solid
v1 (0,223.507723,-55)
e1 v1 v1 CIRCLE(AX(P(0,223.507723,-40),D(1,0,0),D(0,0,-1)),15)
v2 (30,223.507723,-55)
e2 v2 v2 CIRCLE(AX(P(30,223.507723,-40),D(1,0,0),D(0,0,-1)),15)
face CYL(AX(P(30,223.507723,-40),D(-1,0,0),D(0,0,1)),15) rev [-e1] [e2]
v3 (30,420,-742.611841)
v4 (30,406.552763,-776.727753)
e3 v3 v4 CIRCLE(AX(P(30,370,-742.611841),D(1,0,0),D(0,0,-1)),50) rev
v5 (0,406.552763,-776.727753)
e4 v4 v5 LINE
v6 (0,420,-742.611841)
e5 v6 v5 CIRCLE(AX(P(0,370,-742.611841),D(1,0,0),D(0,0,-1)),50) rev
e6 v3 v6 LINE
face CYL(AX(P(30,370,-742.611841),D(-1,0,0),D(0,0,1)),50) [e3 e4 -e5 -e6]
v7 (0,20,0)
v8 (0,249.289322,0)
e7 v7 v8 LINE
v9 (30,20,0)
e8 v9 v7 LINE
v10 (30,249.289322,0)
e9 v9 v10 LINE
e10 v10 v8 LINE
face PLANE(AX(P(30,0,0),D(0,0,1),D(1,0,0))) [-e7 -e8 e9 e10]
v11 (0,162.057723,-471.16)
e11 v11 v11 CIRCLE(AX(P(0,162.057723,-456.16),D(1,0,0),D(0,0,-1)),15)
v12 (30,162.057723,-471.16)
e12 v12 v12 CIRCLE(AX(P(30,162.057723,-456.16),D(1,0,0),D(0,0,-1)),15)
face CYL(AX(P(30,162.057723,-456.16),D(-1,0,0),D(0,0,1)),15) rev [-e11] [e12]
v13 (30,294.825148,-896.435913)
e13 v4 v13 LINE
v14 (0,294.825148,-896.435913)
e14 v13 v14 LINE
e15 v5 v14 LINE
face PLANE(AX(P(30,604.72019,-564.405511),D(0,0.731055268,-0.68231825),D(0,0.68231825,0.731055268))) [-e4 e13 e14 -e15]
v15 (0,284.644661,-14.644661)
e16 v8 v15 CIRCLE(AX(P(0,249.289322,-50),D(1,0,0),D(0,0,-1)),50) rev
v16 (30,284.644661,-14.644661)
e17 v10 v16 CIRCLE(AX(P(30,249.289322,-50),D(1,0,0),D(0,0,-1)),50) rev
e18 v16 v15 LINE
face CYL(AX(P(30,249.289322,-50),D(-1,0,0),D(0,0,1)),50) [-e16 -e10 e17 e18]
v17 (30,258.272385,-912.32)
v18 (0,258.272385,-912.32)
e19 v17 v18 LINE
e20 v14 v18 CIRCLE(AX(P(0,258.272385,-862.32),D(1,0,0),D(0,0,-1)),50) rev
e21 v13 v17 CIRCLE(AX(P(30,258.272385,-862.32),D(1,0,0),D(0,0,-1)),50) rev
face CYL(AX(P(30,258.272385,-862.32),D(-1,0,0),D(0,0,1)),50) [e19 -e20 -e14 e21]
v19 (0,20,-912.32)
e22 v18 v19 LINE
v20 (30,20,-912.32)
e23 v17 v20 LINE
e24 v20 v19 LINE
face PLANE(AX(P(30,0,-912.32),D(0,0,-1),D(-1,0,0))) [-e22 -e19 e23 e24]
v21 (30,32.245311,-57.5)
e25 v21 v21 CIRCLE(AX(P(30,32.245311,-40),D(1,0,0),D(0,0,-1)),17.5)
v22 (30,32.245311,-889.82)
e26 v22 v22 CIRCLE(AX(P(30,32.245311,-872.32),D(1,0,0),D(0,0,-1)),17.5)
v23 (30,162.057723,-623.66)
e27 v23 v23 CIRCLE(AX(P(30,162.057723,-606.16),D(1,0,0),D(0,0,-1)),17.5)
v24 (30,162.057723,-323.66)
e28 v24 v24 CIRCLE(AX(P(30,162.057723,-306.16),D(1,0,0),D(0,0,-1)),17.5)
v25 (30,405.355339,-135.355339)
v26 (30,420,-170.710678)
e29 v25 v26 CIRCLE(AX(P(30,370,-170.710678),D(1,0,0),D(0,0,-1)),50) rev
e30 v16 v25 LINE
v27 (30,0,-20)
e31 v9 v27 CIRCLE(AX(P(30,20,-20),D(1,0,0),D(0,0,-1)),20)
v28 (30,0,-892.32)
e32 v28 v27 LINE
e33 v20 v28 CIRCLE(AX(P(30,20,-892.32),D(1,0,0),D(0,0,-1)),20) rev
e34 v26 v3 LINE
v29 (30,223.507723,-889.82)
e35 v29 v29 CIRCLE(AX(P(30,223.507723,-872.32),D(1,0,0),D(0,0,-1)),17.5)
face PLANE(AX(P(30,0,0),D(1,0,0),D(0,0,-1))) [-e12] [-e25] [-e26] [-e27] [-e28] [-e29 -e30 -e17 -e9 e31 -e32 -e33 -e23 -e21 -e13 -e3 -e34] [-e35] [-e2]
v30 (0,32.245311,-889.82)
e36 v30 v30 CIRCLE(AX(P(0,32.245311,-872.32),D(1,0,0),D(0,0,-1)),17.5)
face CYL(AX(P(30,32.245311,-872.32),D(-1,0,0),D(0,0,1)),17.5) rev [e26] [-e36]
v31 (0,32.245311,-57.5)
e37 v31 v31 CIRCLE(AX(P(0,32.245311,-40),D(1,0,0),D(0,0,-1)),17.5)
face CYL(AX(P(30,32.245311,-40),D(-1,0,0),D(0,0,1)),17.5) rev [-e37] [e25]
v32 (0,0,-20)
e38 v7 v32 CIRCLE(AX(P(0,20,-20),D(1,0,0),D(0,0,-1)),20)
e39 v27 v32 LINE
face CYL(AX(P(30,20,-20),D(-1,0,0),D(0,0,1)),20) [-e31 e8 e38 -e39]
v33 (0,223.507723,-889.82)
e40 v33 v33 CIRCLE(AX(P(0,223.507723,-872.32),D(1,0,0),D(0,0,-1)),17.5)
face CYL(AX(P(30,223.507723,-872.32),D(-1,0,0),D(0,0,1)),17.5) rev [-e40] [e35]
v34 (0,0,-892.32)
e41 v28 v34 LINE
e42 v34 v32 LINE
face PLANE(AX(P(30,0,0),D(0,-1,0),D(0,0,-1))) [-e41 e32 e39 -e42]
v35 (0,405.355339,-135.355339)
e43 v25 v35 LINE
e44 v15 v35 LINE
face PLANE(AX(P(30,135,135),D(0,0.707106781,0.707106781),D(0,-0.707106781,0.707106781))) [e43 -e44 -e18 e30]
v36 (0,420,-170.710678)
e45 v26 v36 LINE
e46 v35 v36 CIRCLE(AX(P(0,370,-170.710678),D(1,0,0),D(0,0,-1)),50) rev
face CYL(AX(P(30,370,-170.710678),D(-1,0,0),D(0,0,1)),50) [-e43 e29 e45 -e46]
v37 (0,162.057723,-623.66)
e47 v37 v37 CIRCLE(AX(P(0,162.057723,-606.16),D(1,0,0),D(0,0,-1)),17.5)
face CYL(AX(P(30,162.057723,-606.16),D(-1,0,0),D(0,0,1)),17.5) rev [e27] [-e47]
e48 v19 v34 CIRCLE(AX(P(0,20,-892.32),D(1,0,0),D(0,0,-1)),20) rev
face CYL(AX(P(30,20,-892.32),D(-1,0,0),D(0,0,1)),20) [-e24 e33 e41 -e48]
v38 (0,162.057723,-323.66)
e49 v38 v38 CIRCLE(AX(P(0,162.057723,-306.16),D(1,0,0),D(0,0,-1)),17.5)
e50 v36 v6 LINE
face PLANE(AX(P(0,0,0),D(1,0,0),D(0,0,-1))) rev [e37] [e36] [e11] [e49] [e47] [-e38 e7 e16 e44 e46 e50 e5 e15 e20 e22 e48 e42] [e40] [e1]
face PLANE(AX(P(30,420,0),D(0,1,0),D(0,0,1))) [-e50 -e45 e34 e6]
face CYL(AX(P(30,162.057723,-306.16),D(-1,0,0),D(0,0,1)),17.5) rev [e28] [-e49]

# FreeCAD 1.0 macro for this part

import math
import FreeCAD as App
import Part
import Sketcher
from FreeCAD import Vector
Q = App.Units.Quantity

doc = App.newDocument("Part")
body = doc.addObject("PartDesign::Body", "Body")

sketch1 = doc.addObject("Sketcher::SketchObject", "Sketch")
body.addObject(sketch1)
sketch1.AttachmentSupport = (doc.YZ_Plane, [""])
sketch1.MapMode = "FlatFace"
sketch1.addGeometry(Part.LineSegment(Vector(249, 0, 0), Vector(20, 0, 0)), False)
sketch1.addGeometry(Part.ArcOfCircle(Part.Circle(Vector(20, -20, 0), Vector(0, 0, 1), 20), math.radians(90), math.radians(180)), False)
sketch1.addGeometry(Part.LineSegment(Vector(0, -20, 0), Vector(0, -892, 0)), False)
sketch1.addGeometry(Part.ArcOfCircle(Part.Circle(Vector(20, -892, 0), Vector(0, 0, 1), 20), math.radians(180), math.radians(270)), False)
sketch1.addGeometry(Part.LineSegment(Vector(20, -912, 0), Vector(258, -912, 0)), False)
sketch1.addGeometry(Part.ArcOfCircle(Part.Circle(Vector(258, -862, 0), Vector(0, 0, 1), 50), math.radians(-90), math.radians(-43)), False)
sketch1.addGeometry(Part.LineSegment(Vector(295, -896, 0), Vector(407, -777, 0)), False)
sketch1.addGeometry(Part.ArcOfCircle(Part.Circle(Vector(370, -743, 0), Vector(0, 0, 1), 50), math.radians(-43), math.radians(0)), False)
sketch1.addGeometry(Part.LineSegment(Vector(420, -743, 0), Vector(420, -171, 0)), False)
sketch1.addGeometry(Part.ArcOfCircle(Part.Circle(Vector(370, -171, 0), Vector(0, 0, 1), 50), math.radians(0), math.radians(45)), False)
sketch1.addGeometry(Part.LineSegment(Vector(405, -135, 0), Vector(285, -15, 0)), False)
sketch1.addGeometry(Part.ArcOfCircle(Part.Circle(Vector(249, -50, 0), Vector(0, 0, 1), 50), math.radians(45), math.radians(90)), False)
sketch1.addGeometry(Part.Circle(Vector(32, -40, 0), Vector(0, 0, 1), 18), False)
sketch1.addGeometry(Part.Circle(Vector(32, -872, 0), Vector(0, 0, 1), 18), False)
sketch1.addGeometry(Part.Circle(Vector(162, -306, 0), Vector(0, 0, 1), 18), False)
sketch1.addGeometry(Part.Circle(Vector(162, -456, 0), Vector(0, 0, 1), 15), False)
sketch1.addGeometry(Part.Circle(Vector(224, -40, 0), Vector(0, 0, 1), 15), False)
sketch1.addGeometry(Part.Circle(Vector(162, -606, 0), Vector(0, 0, 1), 18), False)
sketch1.addGeometry(Part.Circle(Vector(224, -872, 0), Vector(0, 0, 1), 18), False)
sketch1.addConstraint(Sketcher.Constraint("Tangent", 0, 2, 1, 1))
sketch1.addConstraint(Sketcher.Constraint("Tangent", 1, 2, 2, 1))
sketch1.addConstraint(Sketcher.Constraint("Tangent", 2, 2, 3, 1))
sketch1.addConstraint(Sketcher.Constraint("Tangent", 3, 2, 4, 1))
sketch1.addConstraint(Sketcher.Constraint("Tangent", 4, 2, 5, 1))
sketch1.addConstraint(Sketcher.Constraint("Tangent", 5, 2, 6, 1))
sketch1.addConstraint(Sketcher.Constraint("Tangent", 6, 2, 7, 1))
sketch1.addConstraint(Sketcher.Constraint("Tangent", 7, 2, 8, 1))
sketch1.addConstraint(Sketcher.Constraint("Tangent", 8, 2, 9, 1))
sketch1.addConstraint(Sketcher.Constraint("Tangent", 9, 2, 10, 1))
sketch1.addConstraint(Sketcher.Constraint("Tangent", 10, 2, 11, 1))
sketch1.addConstraint(Sketcher.Constraint("Tangent", 11, 2, 0, 1))
sketch1.addConstraint(Sketcher.Constraint("Horizontal", 0))
sketch1.addConstraint(Sketcher.Constraint("Vertical", 2))
sketch1.addConstraint(Sketcher.Constraint("Horizontal", 4))
sketch1.addConstraint(Sketcher.Constraint("Vertical", 8))
sketch1.addConstraint(Sketcher.Constraint("Equal", 1, 3))
sketch1.addConstraint(Sketcher.Constraint("Equal", 5, 7))
sketch1.addConstraint(Sketcher.Constraint("Equal", 7, 9))
sketch1.addConstraint(Sketcher.Constraint("Equal", 9, 11))
sketch1.addConstraint(Sketcher.Constraint("Equal", 12, 13))
sketch1.addConstraint(Sketcher.Constraint("Equal", 13, 14))
sketch1.addConstraint(Sketcher.Constraint("Equal", 15, 16))
sketch1.addConstraint(Sketcher.Constraint("Equal", 14, 17))
sketch1.addConstraint(Sketcher.Constraint("Equal", 17, 18))
sketch1.addConstraint(Sketcher.Constraint("PointOnObject", 0, 2, -1))
sketch1.addConstraint(Sketcher.Constraint("PointOnObject", 1, 2, -2))
sketch1.addConstraint(Sketcher.Constraint("Horizontal", 12, 3, 16, 3))
sketch1.addConstraint(Sketcher.Constraint("Horizontal", 13, 3, 18, 3))
sketch1.addConstraint(Sketcher.Constraint("Vertical", 12, 3, 13, 3))
sketch1.addConstraint(Sketcher.Constraint("Vertical", 14, 3, 15, 3))
sketch1.addConstraint(Sketcher.Constraint("Vertical", 15, 3, 17, 3))
sketch1.addConstraint(Sketcher.Constraint("Vertical", 16, 3, 18, 3))
sketch1.addConstraint(Sketcher.Constraint("Diameter", 12, Q("35 mm")))
sketch1.addConstraint(Sketcher.Constraint("Diameter", 15, Q("30 mm")))
sketch1.addConstraint(Sketcher.Constraint("Radius", 1, Q("20 mm")))
sketch1.addConstraint(Sketcher.Constraint("Radius", 5, Q("50 mm")))
sketch1.addConstraint(Sketcher.Constraint("Angle", 10, Q("135 deg")))
sketch1.addConstraint(Sketcher.Constraint("DistanceX", -1, 1, 7, 3, Q("370 mm")))
sketch1.addConstraint(Sketcher.Constraint("DistanceY", 12, 3, -1, 1, Q("40 mm")))
sketch1.addConstraint(Sketcher.Constraint("DistanceY", 3, 3, 13, 3, Q("20 mm")))
sketch1.addConstraint(Sketcher.Constraint("DistanceY", 15, 3, 14, 3, Q("150 mm")))
sketch1.addConstraint(Sketcher.Constraint("DistanceY", 17, 3, 15, 3, Q("150 mm")))
sketch1.addConstraint(Sketcher.Constraint("DistanceY", 2, 2, 2, 1, Q("872.32 mm")))
sketch1.addConstraint(Sketcher.Constraint("DistanceY", 14, 3, -1, 1, Q("306.16 mm")))
sketch1.addConstraint(Sketcher.Constraint("DistanceX", 14, 3, 16, 3, Q("61.45 mm")))
sketch1.addConstraint(Sketcher.Constraint("DistanceX", 0, 2, 0, 1, Q("229.289322 mm")))
sketch1.addConstraint(Sketcher.Constraint("DistanceX", 14, 3, 11, 3, Q("87.231599 mm")))
sketch1.addConstraint(Sketcher.Constraint("Distance", 6, Q("163.747071 mm")))
sketch1.addConstraint(Sketcher.Constraint("DistanceX", 4, 1, 4, 2, Q("238.272385 mm")))
sketch1.addConstraint(Sketcher.Constraint("DistanceX", -1, 1, 12, 3, Q("32.245311 mm")))
pad1 = doc.addObject("PartDesign::Pad", "Pad")
body.addObject(pad1)
pad1.Profile = sketch1
pad1.Length = 30

doc.recompute()
